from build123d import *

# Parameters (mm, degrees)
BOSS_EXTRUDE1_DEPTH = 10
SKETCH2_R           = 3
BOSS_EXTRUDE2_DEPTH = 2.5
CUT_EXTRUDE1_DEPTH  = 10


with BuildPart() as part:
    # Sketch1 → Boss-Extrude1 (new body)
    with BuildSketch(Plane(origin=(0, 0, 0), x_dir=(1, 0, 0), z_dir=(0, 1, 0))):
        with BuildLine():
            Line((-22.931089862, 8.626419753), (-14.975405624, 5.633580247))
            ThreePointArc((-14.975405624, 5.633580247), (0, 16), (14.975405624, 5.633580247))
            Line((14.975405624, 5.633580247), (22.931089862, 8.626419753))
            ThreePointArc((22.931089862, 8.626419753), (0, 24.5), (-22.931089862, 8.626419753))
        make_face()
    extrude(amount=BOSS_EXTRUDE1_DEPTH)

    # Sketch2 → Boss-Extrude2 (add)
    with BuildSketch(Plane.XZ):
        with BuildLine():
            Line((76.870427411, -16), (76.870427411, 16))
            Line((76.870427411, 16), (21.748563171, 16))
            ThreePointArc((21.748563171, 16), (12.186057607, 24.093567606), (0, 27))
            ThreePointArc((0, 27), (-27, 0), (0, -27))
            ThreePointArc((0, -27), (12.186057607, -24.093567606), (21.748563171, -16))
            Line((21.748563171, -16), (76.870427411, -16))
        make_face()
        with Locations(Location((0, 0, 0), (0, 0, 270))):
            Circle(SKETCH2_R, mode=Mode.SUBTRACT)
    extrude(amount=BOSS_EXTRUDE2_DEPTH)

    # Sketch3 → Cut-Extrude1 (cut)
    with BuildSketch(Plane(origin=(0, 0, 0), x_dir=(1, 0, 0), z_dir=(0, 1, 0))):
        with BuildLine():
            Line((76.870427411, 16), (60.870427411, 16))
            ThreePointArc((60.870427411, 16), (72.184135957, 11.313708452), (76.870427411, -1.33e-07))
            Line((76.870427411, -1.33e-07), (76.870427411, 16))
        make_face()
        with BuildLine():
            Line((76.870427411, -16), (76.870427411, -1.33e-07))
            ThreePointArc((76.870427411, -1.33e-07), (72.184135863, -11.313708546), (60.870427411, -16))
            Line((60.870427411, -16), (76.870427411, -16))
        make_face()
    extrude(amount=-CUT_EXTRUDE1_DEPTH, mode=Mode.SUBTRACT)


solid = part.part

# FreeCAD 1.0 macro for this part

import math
import FreeCAD as App
import Part
import Sketcher
Q = App.Units.Quantity

doc = App.newDocument("Part")
body = doc.addObject("PartDesign::Body", "Body")

# Sketch on XZ plane
sketch1 = body.newObject("Sketcher::SketchObject", "Sketch")
sketch1.AttachmentSupport = (doc.getObject("XZ_Plane"), [""])
sketch1.MapMode = "FlatFace"
sketch1.addGeometry([
    Part.LineSegment(App.Vector(-22.93109, -8.62642, 0), App.Vector(-14.975406, -5.63358, 0)),
    Part.ArcOfCircle(Part.Circle(App.Vector(0, 0, 0), App.Vector(0, 0, 1), 16), math.radians(-159.384261), math.radians(-20.615739)),
    Part.LineSegment(App.Vector(14.975406, -5.63358, 0), App.Vector(22.93109, -8.62642, 0)),
    Part.ArcOfCircle(Part.Circle(App.Vector(0, 0, 0), App.Vector(0, 0, 1), 24.5), math.radians(-159.384261), math.radians(-20.615739)),
], False)
sketch1.addConstraint([
    Sketcher.Constraint("Coincident", 0, 2, 1, 1),
    Sketcher.Constraint("Coincident", 1, 2, 2, 1),
    Sketcher.Constraint("Coincident", 2, 2, 3, 2),
    Sketcher.Constraint("Coincident", 3, 1, 0, 1),
    Sketcher.Constraint("Coincident", 1, 3, -1, 1),
    Sketcher.Constraint("Coincident", 3, 3, -1, 1),
    Sketcher.Constraint("Horizontal", 0, 2, 1, 2),
    Sketcher.Constraint("Horizontal", 2, 2, 3, 1),
    Sketcher.Constraint("Radius", 1, Q("16 mm")),
    Sketcher.Constraint("Radius", 3, Q("24.5 mm")),
    Sketcher.Constraint("DistanceY", 0, 2, -1, 1, Q("5.63358 mm")),
    Sketcher.Constraint("DistanceX", -1, 1, 2, 2, Q("22.93109 mm")),
])
pad1 = body.newObject("PartDesign::Pad", "Pad")
pad1.Profile = sketch1
pad1.Length = 10
pad1.Reversed = True

# Sketch on XZ plane
sketch2 = body.newObject("Sketcher::SketchObject", "Sketch001")
sketch2.AttachmentSupport = (doc.getObject("XZ_Plane"), [""])
sketch2.MapMode = "FlatFace"
sketch2.addGeometry([
    Part.LineSegment(App.Vector(76.870427, -16, 0), App.Vector(76.870427, 16, 0)),  # 0
    Part.LineSegment(App.Vector(76.870427, 16, 0), App.Vector(21.748563, 16, 0)),  # 1
    Part.ArcOfCircle(Part.Circle(App.Vector(0, 0, 0), App.Vector(0, 0, 1), 27), math.radians(36.341203), math.radians(90)),  # 2
    Part.ArcOfCircle(Part.Circle(App.Vector(0, 0, 0), App.Vector(0, 0, 1), 27), math.radians(90), math.radians(270)),  # 3
    Part.ArcOfCircle(Part.Circle(App.Vector(0, 0, 0), App.Vector(0, 0, 1), 27), math.radians(-90), math.radians(-36.341203)),  # 4
    Part.LineSegment(App.Vector(21.748563, -16, 0), App.Vector(76.870427, -16, 0)),  # 5
    Part.Circle(App.Vector(0, 0, 0), App.Vector(0, 0, 1), 3),  # 6
], False)
sketch2.addConstraint([
    Sketcher.Constraint("Coincident", 0, 2, 1, 1),
    Sketcher.Constraint("Coincident", 1, 2, 2, 1),
    Sketcher.Constraint("Tangent", 2, 2, 3, 1),
    Sketcher.Constraint("Tangent", 3, 2, 4, 1),
    Sketcher.Constraint("Coincident", 4, 2, 5, 1),
    Sketcher.Constraint("Coincident", 5, 2, 0, 1),
    Sketcher.Constraint("Vertical", 0),
    Sketcher.Constraint("Horizontal", 1),
    Sketcher.Constraint("Horizontal", 5),
    Sketcher.Constraint("Coincident", 2, 3, -1, 1),
    Sketcher.Constraint("Coincident", 6, 3, -1, 1),
    Sketcher.Constraint("Equal", 2, 3),
    Sketcher.Constraint("Equal", 3, 4),
    Sketcher.Constraint("PointOnObject", 2, 2, -2),
    Sketcher.Constraint("PointOnObject", 3, 2, -2),
    Sketcher.Constraint("Vertical", 1, 2, 4, 2),
    Sketcher.Constraint("Diameter", 6, Q("6 mm")),
    Sketcher.Constraint("Radius", 2, Q("27 mm")),
    Sketcher.Constraint("DistanceY", 0, 1, 0, 2, Q("32 mm")),
    Sketcher.Constraint("DistanceX", 1, 2, 1, 1, Q("55.121864 mm")),
])
pad2 = body.newObject("PartDesign::Pad", "Pad001")
pad2.Profile = sketch2
pad2.Length = 2.5

# Sketch on XZ plane
sketch3 = body.newObject("Sketcher::SketchObject", "Sketch002")
sketch3.AttachmentSupport = (doc.getObject("XZ_Plane"), [""])
sketch3.MapMode = "FlatFace"
sketch3.addGeometry([
    Part.LineSegment(App.Vector(76.870427, -16, 0), App.Vector(60.870427, -16, 0)),  # 0
    Part.ArcOfCircle(Part.Circle(App.Vector(60.870427, 0, 0), App.Vector(0, 0, 1), 16), math.radians(-90), math.radians(0)),  # 1
    Part.LineSegment(App.Vector(76.870427, 0, 0), App.Vector(76.870427, -16, 0)),  # 2
    Part.LineSegment(App.Vector(76.870427, 16, 0), App.Vector(76.870427, 0, 0)),  # 3
    Part.ArcOfCircle(Part.Circle(App.Vector(60.870427, 0, 0), App.Vector(0, 0, 1), 16), math.radians(0), math.radians(90)),  # 4
    Part.LineSegment(App.Vector(60.870427, 16, 0), App.Vector(76.870427, 16, 0)),  # 5
], False)
sketch3.addConstraint([
    Sketcher.Constraint("Tangent", 0, 2, 1, 1),
    Sketcher.Constraint("Tangent", 1, 2, 2, 1),
    Sketcher.Constraint("Coincident", 2, 2, 0, 1),
    Sketcher.Constraint("Tangent", 3, 2, 4, 1),
    Sketcher.Constraint("Tangent", 4, 2, 5, 1),
    Sketcher.Constraint("Coincident", 5, 2, 3, 1),
    Sketcher.Constraint("Horizontal", 0),
    Sketcher.Constraint("Vertical", 2),
    Sketcher.Constraint("Vertical", 3),
    Sketcher.Constraint("Horizontal", 5),
    Sketcher.Constraint("Coincident", 4, 3, 1, 3),
    Sketcher.Constraint("Equal", 1, 4),
    Sketcher.Constraint("PointOnObject", 1, 3, -1),
    Sketcher.Constraint("Radius", 1, Q("16 mm")),
    Sketcher.Constraint("DistanceX", -1, 1, 1, 3, Q("60.870427 mm")),
])
pocket1 = body.newObject("PartDesign::Pocket", "Pocket")
pocket1.Profile = sketch3
pocket1.Length = 10
pocket1.Reversed = True

doc.recompute()
